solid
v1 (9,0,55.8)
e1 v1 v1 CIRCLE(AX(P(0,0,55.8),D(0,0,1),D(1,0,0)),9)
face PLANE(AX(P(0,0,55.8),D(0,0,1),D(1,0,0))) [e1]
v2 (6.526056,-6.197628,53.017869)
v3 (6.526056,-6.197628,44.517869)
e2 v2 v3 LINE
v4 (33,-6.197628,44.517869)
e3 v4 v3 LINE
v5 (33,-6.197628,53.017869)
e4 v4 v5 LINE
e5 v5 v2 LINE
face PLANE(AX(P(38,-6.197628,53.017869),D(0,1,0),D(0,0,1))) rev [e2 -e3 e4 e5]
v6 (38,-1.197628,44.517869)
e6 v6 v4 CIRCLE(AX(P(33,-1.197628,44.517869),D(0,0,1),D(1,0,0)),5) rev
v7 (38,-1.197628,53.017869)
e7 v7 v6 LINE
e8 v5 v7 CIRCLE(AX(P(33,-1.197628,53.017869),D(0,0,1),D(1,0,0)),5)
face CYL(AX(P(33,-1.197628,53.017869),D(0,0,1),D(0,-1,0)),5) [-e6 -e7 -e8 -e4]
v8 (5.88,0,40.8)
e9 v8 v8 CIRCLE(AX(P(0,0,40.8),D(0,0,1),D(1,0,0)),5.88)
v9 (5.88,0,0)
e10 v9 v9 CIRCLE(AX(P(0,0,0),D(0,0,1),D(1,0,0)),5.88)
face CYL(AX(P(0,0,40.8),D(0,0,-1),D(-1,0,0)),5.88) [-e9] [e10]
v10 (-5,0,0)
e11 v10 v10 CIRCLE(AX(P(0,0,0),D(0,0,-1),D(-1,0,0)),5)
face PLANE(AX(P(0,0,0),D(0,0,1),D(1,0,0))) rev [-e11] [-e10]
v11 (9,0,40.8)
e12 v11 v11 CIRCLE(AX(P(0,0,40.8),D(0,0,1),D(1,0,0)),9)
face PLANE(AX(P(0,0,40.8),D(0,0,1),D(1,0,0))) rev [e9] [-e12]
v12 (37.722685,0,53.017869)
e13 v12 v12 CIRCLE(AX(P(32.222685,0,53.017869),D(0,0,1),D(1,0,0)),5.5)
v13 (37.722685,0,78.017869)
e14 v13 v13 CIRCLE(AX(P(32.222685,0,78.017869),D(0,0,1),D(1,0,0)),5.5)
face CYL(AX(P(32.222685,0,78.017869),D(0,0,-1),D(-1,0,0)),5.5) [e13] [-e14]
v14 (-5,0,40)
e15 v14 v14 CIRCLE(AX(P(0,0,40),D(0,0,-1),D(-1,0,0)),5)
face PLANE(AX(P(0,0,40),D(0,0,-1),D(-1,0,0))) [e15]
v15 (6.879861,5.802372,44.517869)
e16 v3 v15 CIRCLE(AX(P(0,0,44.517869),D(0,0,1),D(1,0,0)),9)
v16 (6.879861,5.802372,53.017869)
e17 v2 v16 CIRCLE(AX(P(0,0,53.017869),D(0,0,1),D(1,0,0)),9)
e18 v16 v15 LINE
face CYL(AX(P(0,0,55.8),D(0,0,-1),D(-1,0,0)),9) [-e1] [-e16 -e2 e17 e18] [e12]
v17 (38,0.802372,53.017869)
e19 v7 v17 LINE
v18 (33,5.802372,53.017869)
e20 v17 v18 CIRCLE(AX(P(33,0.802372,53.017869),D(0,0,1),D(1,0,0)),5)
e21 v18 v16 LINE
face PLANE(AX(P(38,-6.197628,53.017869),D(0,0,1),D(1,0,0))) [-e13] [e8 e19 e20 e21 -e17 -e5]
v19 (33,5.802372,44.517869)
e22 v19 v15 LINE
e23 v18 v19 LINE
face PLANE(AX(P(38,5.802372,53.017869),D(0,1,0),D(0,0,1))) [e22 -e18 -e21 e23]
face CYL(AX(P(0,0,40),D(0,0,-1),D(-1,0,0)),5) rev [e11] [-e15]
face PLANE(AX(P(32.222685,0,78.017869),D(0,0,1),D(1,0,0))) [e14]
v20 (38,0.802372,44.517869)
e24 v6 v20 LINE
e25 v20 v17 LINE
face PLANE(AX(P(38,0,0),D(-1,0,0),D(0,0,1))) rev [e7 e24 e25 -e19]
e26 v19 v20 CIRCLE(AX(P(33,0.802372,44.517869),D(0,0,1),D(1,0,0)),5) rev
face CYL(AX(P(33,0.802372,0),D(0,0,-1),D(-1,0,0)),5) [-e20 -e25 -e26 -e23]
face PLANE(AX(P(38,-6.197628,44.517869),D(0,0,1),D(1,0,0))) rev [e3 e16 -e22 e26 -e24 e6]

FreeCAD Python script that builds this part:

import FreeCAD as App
import Part
import Sketcher
from FreeCAD import Vector


def edges_at(feature, points):
    """Names of the edges that pass closest to the given points."""
    edges = feature.Shape.Edges
    near = lambda p: min(range(len(edges)), key=lambda i: edges[i].distToShape(Part.Vertex(*p))[0])
    return sorted({f"Edge{near(p) + 1}" for p in points})


def add_polygon(sketch, points):
    """Adds a closed chain of lines whose ends are joined by coincident constraints."""
    first, n = sketch.GeometryCount, len(points)
    for a, b in zip(points, points[1:] + points[:1]):
        sketch.addGeometry(Part.LineSegment(App.Vector(*a, 0), App.Vector(*b, 0)), False)
    for i in range(n):
        sketch.addConstraint(Sketcher.Constraint("Coincident", first + i, 2, first + (i + 1) % n, 1))

doc = App.newDocument("Part")
params = doc.addObject("Spreadsheet::Sheet", "Params")
for row, (alias, value) in enumerate([
    ("sketch1_diameter", "11.76 mm"),
    ("pad1_length", "40.8 mm"),
    ("sketch2_diameter", "18 mm"),
    ("pad2_length", "15 mm"),
    ("sketch3_diameter", "10 mm"),
    ("pocket1_length", "40 mm"),
    ("sketch4_width", "12 mm"),
    ("sketch4_height", "8.5 mm"),
    ("pad3_length", "38 mm"),
    ("sketch5_diameter", "11 mm"),
    ("pad4_length", "25 mm"),
    ("fillet_radius", "5 mm"),
    ("fillet2_radius", "5 mm"),
], start=1):
    params.set(f"A{row}", alias)
    params.set(f"B{row}", "=" + value)
    params.setAlias(f"B{row}", alias)

body = doc.addObject("PartDesign::Body", "Body")

# Sketch on XY plane
sketch1 = body.newObject("Sketcher::SketchObject", "Sketch")
sketch1.AttachmentSupport = (doc.getObject("XY_Plane"), [""])
sketch1.MapMode = "FlatFace"
sketch1.addGeometry(Part.Circle(Vector(0, 0, 0), Vector(0, 0, 1), 6), False)
sketch1.addConstraint([
    Sketcher.Constraint("Coincident", 0, 3, -1, 1),
    Sketcher.Constraint("Diameter", 0, 11.76),
])
sketch1.setExpression("Constraints[1]", "Params.sketch1_diameter")
pad1 = body.newObject("PartDesign::Pad", "Pad")
pad1.Profile = sketch1
pad1.setExpression("Length", "Params.pad1_length")

# Sketch on XY plane
sketch2 = body.newObject("Sketcher::SketchObject", "Sketch001")
sketch2.AttachmentSupport = (doc.getObject("XY_Plane"), [""])
sketch2.MapMode = "FlatFace"
sketch2.AttachmentOffset = App.Placement(Vector(0, 0, 40.8), App.Rotation())
sketch2.addGeometry(Part.Circle(Vector(0, 0, 0), Vector(0, 0, 1), 9), False)
sketch2.addConstraint([
    Sketcher.Constraint("Coincident", 0, 3, -1, 1),
    Sketcher.Constraint("Diameter", 0, 18.0),
])
sketch2.setExpression("Constraints[1]", "Params.sketch2_diameter")
pad2 = body.newObject("PartDesign::Pad", "Pad001")
pad2.Profile = sketch2
pad2.setExpression("Length", "Params.pad2_length")

# Sketch on XY plane
sketch3 = body.newObject("Sketcher::SketchObject", "Sketch002")
sketch3.AttachmentSupport = (doc.getObject("XY_Plane"), [""])
sketch3.MapMode = "FlatFace"
sketch3.addGeometry(Part.Circle(Vector(0, 0, 0), Vector(0, 0, 1), 5), False)
sketch3.addConstraint([
    Sketcher.Constraint("Coincident", 0, 3, -1, 1),
    Sketcher.Constraint("Diameter", 0, 10.0),
])
sketch3.setExpression("Constraints[1]", "Params.sketch3_diameter")
pocket1 = body.newObject("PartDesign::Pocket", "Pocket")
pocket1.Profile = sketch3
pocket1.setExpression("Length", "Params.pocket1_length")
pocket1.Reversed = True

# Sketch on YZ plane
sketch4 = body.newObject("Sketcher::SketchObject", "Sketch003")
sketch4.AttachmentSupport = (doc.getObject("YZ_Plane"), [""])
sketch4.MapMode = "FlatFace"
add_polygon(sketch4, [(6, 53), (-6, 53), (-6, 45), (6, 45)])  # lines 0-3
sketch4.addConstraint([
    Sketcher.Constraint("Horizontal", 0),
    Sketcher.Constraint("Vertical", 1),
    Sketcher.Constraint("Horizontal", 2),
    Sketcher.Constraint("Vertical", 3),
    Sketcher.Constraint("DistanceX", 0, 2, 0, 1, 12.0),
    Sketcher.Constraint("DistanceY", 1, 2, 1, 1, 8.5),
    Sketcher.Constraint("DistanceX", 0, 2, -1, 1, 6.197628),
    Sketcher.Constraint("DistanceY", -1, 1, 0, 2, 53.017869),
])
sketch4.setExpression("Constraints[8]", "Params.sketch4_width")
sketch4.setExpression("Constraints[9]", "Params.sketch4_height")
pad3 = body.newObject("PartDesign::Pad", "Pad002")
pad3.Profile = sketch4
pad3.setExpression("Length", "Params.pad3_length")

# Sketch on XY plane
sketch5 = body.newObject("Sketcher::SketchObject", "Sketch004")
sketch5.AttachmentSupport = (doc.getObject("XY_Plane"), [""])
sketch5.MapMode = "FlatFace"
sketch5.AttachmentOffset = App.Placement(Vector(0, 0, 53.017869), App.Rotation())
sketch5.addGeometry(Part.Circle(Vector(32, 0, 0), Vector(0, 0, 1), 6), False)
sketch5.addConstraint([
    Sketcher.Constraint("PointOnObject", 0, 3, -1),
    Sketcher.Constraint("Diameter", 0, 11.0),
    Sketcher.Constraint("DistanceX", -1, 1, 0, 3, 32.222685),
])
sketch5.setExpression("Constraints[1]", "Params.sketch5_diameter")
pad4 = body.newObject("PartDesign::Pad", "Pad003")
pad4.Profile = sketch5
pad4.setExpression("Length", "Params.pad4_length")
doc.recompute()

fillet = body.newObject("PartDesign::Fillet", "Fillet")
fillet.Base = (pad4, edges_at(pad4, [(38, 5.802, 48.768)]))
fillet.setExpression("Radius", "Params.fillet_radius")
doc.recompute()

fillet2 = body.newObject("PartDesign::Fillet", "Fillet001")
fillet2.Base = (fillet, edges_at(fillet, [(38, -6.198, 48.768)]))
fillet2.setExpression("Radius", "Params.fillet2_radius")

doc.recompute()
